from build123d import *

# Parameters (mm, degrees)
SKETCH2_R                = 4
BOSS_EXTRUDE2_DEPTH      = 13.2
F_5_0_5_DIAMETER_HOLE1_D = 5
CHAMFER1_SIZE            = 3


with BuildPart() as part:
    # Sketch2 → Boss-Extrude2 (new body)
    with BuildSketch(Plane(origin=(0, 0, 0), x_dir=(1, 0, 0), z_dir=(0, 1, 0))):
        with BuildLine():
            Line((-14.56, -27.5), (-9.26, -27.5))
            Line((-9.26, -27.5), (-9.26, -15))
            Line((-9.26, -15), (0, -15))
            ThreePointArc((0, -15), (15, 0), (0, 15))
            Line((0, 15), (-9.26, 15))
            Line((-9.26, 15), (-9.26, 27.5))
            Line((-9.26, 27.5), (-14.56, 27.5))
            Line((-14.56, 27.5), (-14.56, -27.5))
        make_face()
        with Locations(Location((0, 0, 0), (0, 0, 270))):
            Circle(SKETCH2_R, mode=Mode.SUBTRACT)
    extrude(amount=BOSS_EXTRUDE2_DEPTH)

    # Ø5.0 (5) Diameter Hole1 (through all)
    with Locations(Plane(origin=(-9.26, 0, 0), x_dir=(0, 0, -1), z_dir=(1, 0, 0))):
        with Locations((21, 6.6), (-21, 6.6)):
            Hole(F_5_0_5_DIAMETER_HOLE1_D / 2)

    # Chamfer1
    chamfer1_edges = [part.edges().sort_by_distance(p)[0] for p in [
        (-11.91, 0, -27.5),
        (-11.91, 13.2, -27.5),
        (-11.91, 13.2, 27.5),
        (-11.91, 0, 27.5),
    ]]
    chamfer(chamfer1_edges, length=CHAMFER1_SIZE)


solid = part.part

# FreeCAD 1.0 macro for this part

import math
import FreeCAD as App
import Part
import Sketcher

V = App.Vector


def edges_at(feature, points):
    """Names of the edges that pass closest to the given points."""
    edges = feature.Shape.Edges
    near = lambda p: min(range(len(edges)), key=lambda i: edges[i].distToShape(Part.Vertex(*p))[0])
    return sorted({f"Edge{near(p) + 1}" for p in points})

doc = App.newDocument("Part")
body = doc.addObject("PartDesign::Body", "Body")

sketch1 = body.newObject("Sketcher::SketchObject", "Sketch")
sketch1.AttachmentSupport = (doc.getObject("XZ_Plane"), [""])
sketch1.MapMode = "FlatFace"
sketch1.addGeometry([
    Part.LineSegment(V(-14.6, 27.5, 0), V(-9.3, 27.5, 0)),
    Part.LineSegment(V(-9.3, 27.5, 0), V(-9.3, 15, 0)),
    Part.LineSegment(V(-9.3, 15, 0), V(0, 15, 0)),
    Part.ArcOfCircle(Part.Circle(V(0, 0, 0), V(0, 0, 1), 15), math.radians(-90), math.radians(90)),
    Part.LineSegment(V(0, -15, 0), V(-9.3, -15, 0)),
    Part.LineSegment(V(-9.3, -15, 0), V(-9.3, -27.5, 0)),
    Part.LineSegment(V(-9.3, -27.5, 0), V(-14.6, -27.5, 0)),
    Part.LineSegment(V(-14.6, -27.5, 0), V(-14.6, 27.5, 0)),
    Part.Circle(V(0, 0, 0), V(0, 0, 1), 4),
], False)
sketch1.addConstraint([
    Sketcher.Constraint("Coincident", 0, 2, 1, 1),
    Sketcher.Constraint("Coincident", 1, 2, 2, 1),
    Sketcher.Constraint("Tangent", 2, 2, 3, 2),
    Sketcher.Constraint("Tangent", 3, 1, 4, 1),
    Sketcher.Constraint("Coincident", 4, 2, 5, 1),
    Sketcher.Constraint("Coincident", 5, 2, 6, 1),
    Sketcher.Constraint("Coincident", 6, 2, 7, 1),
    Sketcher.Constraint("Coincident", 7, 2, 0, 1),
    Sketcher.Constraint("Horizontal", 0),
    Sketcher.Constraint("Vertical", 1),
    Sketcher.Constraint("Horizontal", 2),
    Sketcher.Constraint("Horizontal", 4),
    Sketcher.Constraint("Vertical", 5),
    Sketcher.Constraint("Horizontal", 6),
    Sketcher.Constraint("Vertical", 7),
    Sketcher.Constraint("Coincident", 3, 3, -1, 1),
    Sketcher.Constraint("Coincident", 8, 3, -1, 1),
    Sketcher.Constraint("Symmetric", 0, 2, 5, 2, -1),
    Sketcher.Constraint("Diameter", 8, 8.0),
    Sketcher.Constraint("Radius", 3, 15.0),
    Sketcher.Constraint("DistanceY", 7, 1, 7, 2, 55.0),
    Sketcher.Constraint("DistanceX", 0, 1, 0, 2, 5.3),
    Sketcher.Constraint("DistanceX", 2, 1, 2, 2, 9.26),
])
pad1 = body.newObject("PartDesign::Pad", "Pad")
pad1.Profile = sketch1
pad1.Length = 13.2
pad1.Reversed = True

sketch2 = body.newObject("Sketcher::SketchObject", "Sketch001")
sketch2.AttachmentSupport = (doc.getObject("YZ_Plane"), [""])
sketch2.MapMode = "FlatFace"
sketch2.AttachmentOffset = App.Placement(V(0, 0, -9.26), App.Rotation())
sketch2.addGeometry([
    Part.Circle(V(6.6, -21, 0), V(0, 0, 1), 2.5),
    Part.Circle(V(6.6, 21, 0), V(0, 0, 1), 2.5),
], False)
sketch2.addConstraint([
    Sketcher.Constraint("Equal", 0, 1),
    Sketcher.Constraint("Symmetric", 0, 3, 1, 3, -1),
    Sketcher.Constraint("Diameter", 0, 5.0),
    Sketcher.Constraint("DistanceY", 0, 3, -1, 1, 21.0),
    Sketcher.Constraint("DistanceX", -1, 1, 0, 3, 6.6),
])
doc.recompute()
hole = body.newObject("PartDesign::Hole", "Hole")
hole.Profile = sketch2
hole.ThreadType = "None"
hole.Diameter = 5
hole.DepthType = "ThroughAll"
doc.recompute()

chamfer = body.newObject("PartDesign::Chamfer", "Chamfer")
chamfer.Base = (hole, edges_at(hole, [
    (-11.91, 0, -27.5),
    (-11.91, 13.2, -27.5),
    (-11.91, 13.2, 27.5),
    (-11.91, 0, 27.5),
]))
chamfer.Size = 3

doc.recompute()
